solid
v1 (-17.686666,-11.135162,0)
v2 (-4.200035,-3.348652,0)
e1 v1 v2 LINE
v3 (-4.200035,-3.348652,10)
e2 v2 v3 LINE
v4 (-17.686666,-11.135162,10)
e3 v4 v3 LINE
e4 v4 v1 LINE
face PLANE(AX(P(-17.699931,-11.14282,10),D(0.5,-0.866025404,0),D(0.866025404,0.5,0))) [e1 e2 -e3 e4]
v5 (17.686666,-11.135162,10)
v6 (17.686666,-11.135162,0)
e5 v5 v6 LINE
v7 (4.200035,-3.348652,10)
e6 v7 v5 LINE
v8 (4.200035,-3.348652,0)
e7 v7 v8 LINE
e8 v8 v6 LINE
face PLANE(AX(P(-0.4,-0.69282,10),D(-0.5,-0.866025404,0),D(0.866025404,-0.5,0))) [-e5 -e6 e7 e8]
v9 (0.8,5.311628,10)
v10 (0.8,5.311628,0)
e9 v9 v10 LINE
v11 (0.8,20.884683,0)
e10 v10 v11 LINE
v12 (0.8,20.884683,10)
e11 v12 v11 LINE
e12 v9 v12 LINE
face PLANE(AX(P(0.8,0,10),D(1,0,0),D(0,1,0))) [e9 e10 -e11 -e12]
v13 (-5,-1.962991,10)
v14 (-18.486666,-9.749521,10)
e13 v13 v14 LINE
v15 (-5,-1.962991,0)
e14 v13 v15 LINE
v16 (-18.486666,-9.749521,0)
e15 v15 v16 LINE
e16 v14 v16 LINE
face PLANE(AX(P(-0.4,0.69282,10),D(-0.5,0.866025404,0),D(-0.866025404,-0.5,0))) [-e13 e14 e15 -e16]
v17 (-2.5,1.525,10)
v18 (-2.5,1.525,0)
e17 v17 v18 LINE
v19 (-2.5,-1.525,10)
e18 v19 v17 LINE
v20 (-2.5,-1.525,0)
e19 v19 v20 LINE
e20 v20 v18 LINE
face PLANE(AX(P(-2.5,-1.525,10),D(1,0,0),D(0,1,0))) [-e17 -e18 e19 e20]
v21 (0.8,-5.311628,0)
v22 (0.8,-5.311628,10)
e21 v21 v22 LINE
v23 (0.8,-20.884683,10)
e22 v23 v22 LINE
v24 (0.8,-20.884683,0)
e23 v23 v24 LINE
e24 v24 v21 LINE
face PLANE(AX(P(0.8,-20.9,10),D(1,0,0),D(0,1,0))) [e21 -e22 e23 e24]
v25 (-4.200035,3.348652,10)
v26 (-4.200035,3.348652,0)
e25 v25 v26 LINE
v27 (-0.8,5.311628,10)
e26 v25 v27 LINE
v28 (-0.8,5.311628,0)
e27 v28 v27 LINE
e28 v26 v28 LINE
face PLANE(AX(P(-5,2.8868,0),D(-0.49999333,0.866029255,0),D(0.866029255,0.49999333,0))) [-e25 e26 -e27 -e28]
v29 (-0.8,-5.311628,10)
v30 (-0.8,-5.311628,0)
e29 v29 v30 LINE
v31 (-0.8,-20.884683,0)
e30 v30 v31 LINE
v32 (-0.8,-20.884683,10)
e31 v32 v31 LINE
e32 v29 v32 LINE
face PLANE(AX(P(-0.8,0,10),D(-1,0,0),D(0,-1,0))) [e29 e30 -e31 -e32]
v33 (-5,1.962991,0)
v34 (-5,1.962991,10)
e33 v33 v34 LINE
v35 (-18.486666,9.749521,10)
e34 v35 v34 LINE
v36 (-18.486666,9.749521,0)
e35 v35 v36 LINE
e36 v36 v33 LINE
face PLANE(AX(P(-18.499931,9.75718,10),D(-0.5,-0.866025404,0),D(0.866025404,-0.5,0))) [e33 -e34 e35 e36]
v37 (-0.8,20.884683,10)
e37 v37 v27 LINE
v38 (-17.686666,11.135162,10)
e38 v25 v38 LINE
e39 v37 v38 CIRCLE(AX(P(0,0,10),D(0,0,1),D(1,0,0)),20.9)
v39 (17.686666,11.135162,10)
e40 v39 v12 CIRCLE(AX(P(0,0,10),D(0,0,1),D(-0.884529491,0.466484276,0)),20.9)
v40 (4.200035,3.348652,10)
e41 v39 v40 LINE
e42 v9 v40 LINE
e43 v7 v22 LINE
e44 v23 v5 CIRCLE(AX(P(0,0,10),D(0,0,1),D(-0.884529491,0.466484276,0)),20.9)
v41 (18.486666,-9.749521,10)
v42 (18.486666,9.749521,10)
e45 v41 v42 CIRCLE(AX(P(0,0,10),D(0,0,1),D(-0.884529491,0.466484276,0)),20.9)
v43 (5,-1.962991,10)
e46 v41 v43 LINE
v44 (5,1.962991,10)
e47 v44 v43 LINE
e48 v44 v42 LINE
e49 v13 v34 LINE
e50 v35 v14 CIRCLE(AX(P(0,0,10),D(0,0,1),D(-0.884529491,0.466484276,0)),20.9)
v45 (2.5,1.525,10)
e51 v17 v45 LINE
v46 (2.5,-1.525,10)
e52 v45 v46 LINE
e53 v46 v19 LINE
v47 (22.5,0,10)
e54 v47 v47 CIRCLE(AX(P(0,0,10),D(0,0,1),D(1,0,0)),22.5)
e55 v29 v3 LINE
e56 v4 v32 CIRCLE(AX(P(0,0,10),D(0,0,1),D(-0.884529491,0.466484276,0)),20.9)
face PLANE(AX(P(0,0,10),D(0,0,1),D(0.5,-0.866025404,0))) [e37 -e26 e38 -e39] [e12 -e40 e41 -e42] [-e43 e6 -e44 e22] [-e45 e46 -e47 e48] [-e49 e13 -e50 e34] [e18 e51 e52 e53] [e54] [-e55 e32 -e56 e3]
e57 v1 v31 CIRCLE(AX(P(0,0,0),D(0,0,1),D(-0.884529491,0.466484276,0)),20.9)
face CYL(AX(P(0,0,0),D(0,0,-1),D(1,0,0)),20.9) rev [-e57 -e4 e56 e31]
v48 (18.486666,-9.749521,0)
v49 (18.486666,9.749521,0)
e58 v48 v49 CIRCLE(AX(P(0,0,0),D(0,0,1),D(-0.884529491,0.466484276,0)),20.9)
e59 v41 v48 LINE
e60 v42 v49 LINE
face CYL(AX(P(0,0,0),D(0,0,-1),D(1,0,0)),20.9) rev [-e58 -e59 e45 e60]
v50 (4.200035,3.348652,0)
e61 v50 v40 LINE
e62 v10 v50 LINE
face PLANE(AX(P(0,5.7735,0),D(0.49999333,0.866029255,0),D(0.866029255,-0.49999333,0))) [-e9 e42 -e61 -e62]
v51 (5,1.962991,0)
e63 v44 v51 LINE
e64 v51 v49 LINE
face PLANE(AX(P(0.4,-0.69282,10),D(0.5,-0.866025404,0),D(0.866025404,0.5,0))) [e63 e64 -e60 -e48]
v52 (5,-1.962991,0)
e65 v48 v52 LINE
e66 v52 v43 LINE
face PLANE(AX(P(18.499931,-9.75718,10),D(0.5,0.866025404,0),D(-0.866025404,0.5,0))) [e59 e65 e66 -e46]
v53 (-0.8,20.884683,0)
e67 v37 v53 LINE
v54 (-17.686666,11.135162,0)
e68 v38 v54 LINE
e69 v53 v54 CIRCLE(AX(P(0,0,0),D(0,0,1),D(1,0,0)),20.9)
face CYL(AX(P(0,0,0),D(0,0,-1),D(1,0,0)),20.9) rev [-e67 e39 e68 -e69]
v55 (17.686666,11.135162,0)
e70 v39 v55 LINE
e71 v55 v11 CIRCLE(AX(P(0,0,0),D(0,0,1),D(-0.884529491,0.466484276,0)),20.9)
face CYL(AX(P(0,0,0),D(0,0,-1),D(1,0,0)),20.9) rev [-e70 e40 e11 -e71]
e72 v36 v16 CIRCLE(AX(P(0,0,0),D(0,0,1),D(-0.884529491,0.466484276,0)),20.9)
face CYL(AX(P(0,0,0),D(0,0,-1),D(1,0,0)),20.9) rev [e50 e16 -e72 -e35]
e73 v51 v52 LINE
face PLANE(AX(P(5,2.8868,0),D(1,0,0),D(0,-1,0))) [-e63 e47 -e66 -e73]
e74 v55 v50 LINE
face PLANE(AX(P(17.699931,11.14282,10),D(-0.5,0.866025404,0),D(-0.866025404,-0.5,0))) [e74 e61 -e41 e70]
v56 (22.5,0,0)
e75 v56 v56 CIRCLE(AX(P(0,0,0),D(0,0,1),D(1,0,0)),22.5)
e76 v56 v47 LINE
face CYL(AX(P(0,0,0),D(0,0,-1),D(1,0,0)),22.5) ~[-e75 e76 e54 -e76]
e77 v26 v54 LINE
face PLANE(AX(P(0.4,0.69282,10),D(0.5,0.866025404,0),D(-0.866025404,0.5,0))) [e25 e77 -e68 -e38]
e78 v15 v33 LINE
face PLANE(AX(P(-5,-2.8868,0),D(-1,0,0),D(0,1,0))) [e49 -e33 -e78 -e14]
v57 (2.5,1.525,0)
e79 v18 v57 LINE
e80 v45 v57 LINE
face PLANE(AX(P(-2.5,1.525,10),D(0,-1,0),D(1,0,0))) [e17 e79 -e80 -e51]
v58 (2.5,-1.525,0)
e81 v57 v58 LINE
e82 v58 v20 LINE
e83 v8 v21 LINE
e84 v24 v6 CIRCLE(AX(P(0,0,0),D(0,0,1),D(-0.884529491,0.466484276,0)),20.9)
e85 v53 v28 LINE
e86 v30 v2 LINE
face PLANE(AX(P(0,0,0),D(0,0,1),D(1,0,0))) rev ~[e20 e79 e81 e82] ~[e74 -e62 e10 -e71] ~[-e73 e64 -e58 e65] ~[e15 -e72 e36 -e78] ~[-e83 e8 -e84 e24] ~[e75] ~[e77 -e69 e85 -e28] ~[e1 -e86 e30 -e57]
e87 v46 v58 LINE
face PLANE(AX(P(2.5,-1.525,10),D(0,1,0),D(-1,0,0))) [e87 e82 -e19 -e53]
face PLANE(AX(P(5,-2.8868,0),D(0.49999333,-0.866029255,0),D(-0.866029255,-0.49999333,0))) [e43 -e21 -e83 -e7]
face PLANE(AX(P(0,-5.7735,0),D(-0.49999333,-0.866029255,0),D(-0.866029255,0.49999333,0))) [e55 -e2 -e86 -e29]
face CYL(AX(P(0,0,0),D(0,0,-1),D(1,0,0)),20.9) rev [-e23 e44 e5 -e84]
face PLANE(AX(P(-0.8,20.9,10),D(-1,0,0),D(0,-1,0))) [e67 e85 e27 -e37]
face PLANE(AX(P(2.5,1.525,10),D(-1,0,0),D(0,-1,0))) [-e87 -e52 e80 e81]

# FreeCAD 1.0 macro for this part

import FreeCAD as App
import Part
import Sketcher
Q = App.Units.Quantity


def add_polygon(sketch, points):
    """Adds a closed chain of lines whose ends are joined by coincident constraints."""
    first, n = sketch.GeometryCount, len(points)
    for a, b in zip(points, points[1:] + points[:1]):
        sketch.addGeometry(Part.LineSegment(App.Vector(*a, 0), App.Vector(*b, 0)), False)
    for i in range(n):
        sketch.addConstraint(Sketcher.Constraint("Coincident", first + i, 2, first + (i + 1) % n, 1))

doc = App.newDocument("Part")
params = doc.addObject("Spreadsheet::Sheet", "Params")
for row, (alias, value) in enumerate([
    ("sketch1_diameter", "45 mm"),
    ("sketch1_diameter2", "41.8 mm"),
    ("pad1_length", "10 mm"),
    ("sketch2_width", "1.6 mm"),
    ("sketch2_height", "20.9 mm"),
    ("pad2_length", "10 mm"),
    ("sketch3_width", "5 mm"),
    ("sketch3_height", "3.05 mm"),
], start=1):
    params.set(f"A{row}", alias)
    params.set(f"B{row}", "=" + value)
    params.setAlias(f"B{row}", alias)

body = doc.addObject("PartDesign::Body", "Body")
body.AllowCompound = True

# Sketch on XY plane
sketch1 = body.newObject("Sketcher::SketchObject", "Sketch")
sketch1.AttachmentSupport = (doc.getObject("XY_Plane"), [""])
sketch1.MapMode = "FlatFace"
add_polygon(sketch1, [(-5, -3), (0, -6), (5, -3), (5, 3), (0, 6), (-5, 3)])  # lines 0-5
sketch1.addGeometry(Part.Circle(App.Vector(0, 0, 0), App.Vector(0, 0, 1), 22), False)  # 6
sketch1.addGeometry(Part.Circle(App.Vector(0, 0, 0), App.Vector(0, 0, 1), 21), False)  # 7
sketch1.addConstraint(Sketcher.Constraint("Vertical", 2))
sketch1.addConstraint(Sketcher.Constraint("Vertical", 5))
sketch1.addConstraint(Sketcher.Constraint("Coincident", 6, 3, -1, 1))
sketch1.addConstraint(Sketcher.Constraint("Coincident", 7, 3, -1, 1))
sketch1.addConstraint(Sketcher.Constraint("Symmetric", 0, 2, 3, 2, -1, 1))
sketch1.addConstraint(Sketcher.Constraint("Symmetric", 1, 2, 4, 2, -1, 1))
sketch1.addConstraint(Sketcher.Constraint("PointOnObject", 0, 2, -2))
sketch1.addConstraint(Sketcher.Constraint("Parallel", 0, 3))
sketch1.addConstraint(Sketcher.Constraint("Horizontal", 2, 2, 4, 2))
sketch1.addConstraint(Sketcher.Constraint("Diameter", 6, 45.0))
sketch1.addConstraint(Sketcher.Constraint("DistanceX", 4, 2, 2, 2, 10.0))
sketch1.addConstraint(Sketcher.Constraint("Diameter", 7, 41.8))
sketch1.addConstraint(Sketcher.Constraint("Angle", 0, Q("-29.9996 deg")))
sketch1.addConstraint(Sketcher.Constraint("DistanceY", 2, 1, 2, 2, 5.7736))
sketch1.setExpression("Constraints[15]", "Params.sketch1_diameter")
sketch1.setExpression("Constraints[17]", "Params.sketch1_diameter2")
pad1 = body.newObject("PartDesign::Pad", "Pad")
pad1.Profile = sketch1
pad1.setExpression("Length", "Params.pad1_length")

# Sketch on XY plane
sketch2 = body.newObject("Sketcher::SketchObject", "Sketch001")
sketch2.AttachmentSupport = (doc.getObject("XY_Plane"), [""])
sketch2.MapMode = "FlatFace"
sketch2.AttachmentOffset = App.Placement(App.Vector(0, 0, 10), App.Rotation())
add_polygon(sketch2, [(-0.8, 20.9), (-0.8, 0), (0.8, 0), (0.8, 20.9)])  # lines 0-3
sketch2.addConstraint(Sketcher.Constraint("Vertical", 0))
sketch2.addConstraint(Sketcher.Constraint("Horizontal", 1))
sketch2.addConstraint(Sketcher.Constraint("Vertical", 2))
sketch2.addConstraint(Sketcher.Constraint("Horizontal", 3))
sketch2.addConstraint(Sketcher.Constraint("Symmetric", 0, 2, 1, 2, -1, 1))
sketch2.addConstraint(Sketcher.Constraint("DistanceX", 1, 1, 1, 2, 1.6))
sketch2.addConstraint(Sketcher.Constraint("DistanceY", 0, 2, 0, 1, 20.9))
sketch2.setExpression("Constraints[9]", "Params.sketch2_width")
sketch2.setExpression("Constraints[10]", "Params.sketch2_height")
pad2 = body.newObject("PartDesign::Pad", "Pad001")
pad2.Profile = sketch2
pad2.setExpression("Length", "Params.pad2_length")
pad2.Reversed = True
doc.recompute()

polarpattern = body.newObject("PartDesign::PolarPattern", "PolarPattern")
polarpattern.Originals = [pad2]
polarpattern.Axis = (doc.getObject("Z_Axis"), [""])
polarpattern.Angle = 360
polarpattern.Occurrences = 6
body.Tip = polarpattern

# Sketch on XY plane
sketch3 = body.newObject("Sketcher::SketchObject", "Sketch002")
sketch3.AttachmentSupport = (doc.getObject("XY_Plane"), [""])
sketch3.MapMode = "FlatFace"
sketch3.AttachmentOffset = App.Placement(App.Vector(0, 0, 10), App.Rotation())
add_polygon(sketch3, [(2.5, 1.5), (-2.5, 1.5), (-2.5, -1.5), (2.5, -1.5)])  # lines 0-3
sketch3.addConstraint(Sketcher.Constraint("Horizontal", 0))
sketch3.addConstraint(Sketcher.Constraint("Vertical", 1))
sketch3.addConstraint(Sketcher.Constraint("Horizontal", 2))
sketch3.addConstraint(Sketcher.Constraint("Vertical", 3))
sketch3.addConstraint(Sketcher.Constraint("Symmetric", 0, 2, 2, 2, -1, 1))
sketch3.addConstraint(Sketcher.Constraint("DistanceX", 0, 2, 0, 1, 5.0))
sketch3.addConstraint(Sketcher.Constraint("DistanceY", 1, 2, 1, 1, 3.05))
sketch3.setExpression("Constraints[9]", "Params.sketch3_width")
sketch3.setExpression("Constraints[10]", "Params.sketch3_height")
pocket1 = body.newObject("PartDesign::Pocket", "Pocket")
pocket1.Profile = sketch3
pocket1.Type = "ThroughAll"

doc.recompute()
